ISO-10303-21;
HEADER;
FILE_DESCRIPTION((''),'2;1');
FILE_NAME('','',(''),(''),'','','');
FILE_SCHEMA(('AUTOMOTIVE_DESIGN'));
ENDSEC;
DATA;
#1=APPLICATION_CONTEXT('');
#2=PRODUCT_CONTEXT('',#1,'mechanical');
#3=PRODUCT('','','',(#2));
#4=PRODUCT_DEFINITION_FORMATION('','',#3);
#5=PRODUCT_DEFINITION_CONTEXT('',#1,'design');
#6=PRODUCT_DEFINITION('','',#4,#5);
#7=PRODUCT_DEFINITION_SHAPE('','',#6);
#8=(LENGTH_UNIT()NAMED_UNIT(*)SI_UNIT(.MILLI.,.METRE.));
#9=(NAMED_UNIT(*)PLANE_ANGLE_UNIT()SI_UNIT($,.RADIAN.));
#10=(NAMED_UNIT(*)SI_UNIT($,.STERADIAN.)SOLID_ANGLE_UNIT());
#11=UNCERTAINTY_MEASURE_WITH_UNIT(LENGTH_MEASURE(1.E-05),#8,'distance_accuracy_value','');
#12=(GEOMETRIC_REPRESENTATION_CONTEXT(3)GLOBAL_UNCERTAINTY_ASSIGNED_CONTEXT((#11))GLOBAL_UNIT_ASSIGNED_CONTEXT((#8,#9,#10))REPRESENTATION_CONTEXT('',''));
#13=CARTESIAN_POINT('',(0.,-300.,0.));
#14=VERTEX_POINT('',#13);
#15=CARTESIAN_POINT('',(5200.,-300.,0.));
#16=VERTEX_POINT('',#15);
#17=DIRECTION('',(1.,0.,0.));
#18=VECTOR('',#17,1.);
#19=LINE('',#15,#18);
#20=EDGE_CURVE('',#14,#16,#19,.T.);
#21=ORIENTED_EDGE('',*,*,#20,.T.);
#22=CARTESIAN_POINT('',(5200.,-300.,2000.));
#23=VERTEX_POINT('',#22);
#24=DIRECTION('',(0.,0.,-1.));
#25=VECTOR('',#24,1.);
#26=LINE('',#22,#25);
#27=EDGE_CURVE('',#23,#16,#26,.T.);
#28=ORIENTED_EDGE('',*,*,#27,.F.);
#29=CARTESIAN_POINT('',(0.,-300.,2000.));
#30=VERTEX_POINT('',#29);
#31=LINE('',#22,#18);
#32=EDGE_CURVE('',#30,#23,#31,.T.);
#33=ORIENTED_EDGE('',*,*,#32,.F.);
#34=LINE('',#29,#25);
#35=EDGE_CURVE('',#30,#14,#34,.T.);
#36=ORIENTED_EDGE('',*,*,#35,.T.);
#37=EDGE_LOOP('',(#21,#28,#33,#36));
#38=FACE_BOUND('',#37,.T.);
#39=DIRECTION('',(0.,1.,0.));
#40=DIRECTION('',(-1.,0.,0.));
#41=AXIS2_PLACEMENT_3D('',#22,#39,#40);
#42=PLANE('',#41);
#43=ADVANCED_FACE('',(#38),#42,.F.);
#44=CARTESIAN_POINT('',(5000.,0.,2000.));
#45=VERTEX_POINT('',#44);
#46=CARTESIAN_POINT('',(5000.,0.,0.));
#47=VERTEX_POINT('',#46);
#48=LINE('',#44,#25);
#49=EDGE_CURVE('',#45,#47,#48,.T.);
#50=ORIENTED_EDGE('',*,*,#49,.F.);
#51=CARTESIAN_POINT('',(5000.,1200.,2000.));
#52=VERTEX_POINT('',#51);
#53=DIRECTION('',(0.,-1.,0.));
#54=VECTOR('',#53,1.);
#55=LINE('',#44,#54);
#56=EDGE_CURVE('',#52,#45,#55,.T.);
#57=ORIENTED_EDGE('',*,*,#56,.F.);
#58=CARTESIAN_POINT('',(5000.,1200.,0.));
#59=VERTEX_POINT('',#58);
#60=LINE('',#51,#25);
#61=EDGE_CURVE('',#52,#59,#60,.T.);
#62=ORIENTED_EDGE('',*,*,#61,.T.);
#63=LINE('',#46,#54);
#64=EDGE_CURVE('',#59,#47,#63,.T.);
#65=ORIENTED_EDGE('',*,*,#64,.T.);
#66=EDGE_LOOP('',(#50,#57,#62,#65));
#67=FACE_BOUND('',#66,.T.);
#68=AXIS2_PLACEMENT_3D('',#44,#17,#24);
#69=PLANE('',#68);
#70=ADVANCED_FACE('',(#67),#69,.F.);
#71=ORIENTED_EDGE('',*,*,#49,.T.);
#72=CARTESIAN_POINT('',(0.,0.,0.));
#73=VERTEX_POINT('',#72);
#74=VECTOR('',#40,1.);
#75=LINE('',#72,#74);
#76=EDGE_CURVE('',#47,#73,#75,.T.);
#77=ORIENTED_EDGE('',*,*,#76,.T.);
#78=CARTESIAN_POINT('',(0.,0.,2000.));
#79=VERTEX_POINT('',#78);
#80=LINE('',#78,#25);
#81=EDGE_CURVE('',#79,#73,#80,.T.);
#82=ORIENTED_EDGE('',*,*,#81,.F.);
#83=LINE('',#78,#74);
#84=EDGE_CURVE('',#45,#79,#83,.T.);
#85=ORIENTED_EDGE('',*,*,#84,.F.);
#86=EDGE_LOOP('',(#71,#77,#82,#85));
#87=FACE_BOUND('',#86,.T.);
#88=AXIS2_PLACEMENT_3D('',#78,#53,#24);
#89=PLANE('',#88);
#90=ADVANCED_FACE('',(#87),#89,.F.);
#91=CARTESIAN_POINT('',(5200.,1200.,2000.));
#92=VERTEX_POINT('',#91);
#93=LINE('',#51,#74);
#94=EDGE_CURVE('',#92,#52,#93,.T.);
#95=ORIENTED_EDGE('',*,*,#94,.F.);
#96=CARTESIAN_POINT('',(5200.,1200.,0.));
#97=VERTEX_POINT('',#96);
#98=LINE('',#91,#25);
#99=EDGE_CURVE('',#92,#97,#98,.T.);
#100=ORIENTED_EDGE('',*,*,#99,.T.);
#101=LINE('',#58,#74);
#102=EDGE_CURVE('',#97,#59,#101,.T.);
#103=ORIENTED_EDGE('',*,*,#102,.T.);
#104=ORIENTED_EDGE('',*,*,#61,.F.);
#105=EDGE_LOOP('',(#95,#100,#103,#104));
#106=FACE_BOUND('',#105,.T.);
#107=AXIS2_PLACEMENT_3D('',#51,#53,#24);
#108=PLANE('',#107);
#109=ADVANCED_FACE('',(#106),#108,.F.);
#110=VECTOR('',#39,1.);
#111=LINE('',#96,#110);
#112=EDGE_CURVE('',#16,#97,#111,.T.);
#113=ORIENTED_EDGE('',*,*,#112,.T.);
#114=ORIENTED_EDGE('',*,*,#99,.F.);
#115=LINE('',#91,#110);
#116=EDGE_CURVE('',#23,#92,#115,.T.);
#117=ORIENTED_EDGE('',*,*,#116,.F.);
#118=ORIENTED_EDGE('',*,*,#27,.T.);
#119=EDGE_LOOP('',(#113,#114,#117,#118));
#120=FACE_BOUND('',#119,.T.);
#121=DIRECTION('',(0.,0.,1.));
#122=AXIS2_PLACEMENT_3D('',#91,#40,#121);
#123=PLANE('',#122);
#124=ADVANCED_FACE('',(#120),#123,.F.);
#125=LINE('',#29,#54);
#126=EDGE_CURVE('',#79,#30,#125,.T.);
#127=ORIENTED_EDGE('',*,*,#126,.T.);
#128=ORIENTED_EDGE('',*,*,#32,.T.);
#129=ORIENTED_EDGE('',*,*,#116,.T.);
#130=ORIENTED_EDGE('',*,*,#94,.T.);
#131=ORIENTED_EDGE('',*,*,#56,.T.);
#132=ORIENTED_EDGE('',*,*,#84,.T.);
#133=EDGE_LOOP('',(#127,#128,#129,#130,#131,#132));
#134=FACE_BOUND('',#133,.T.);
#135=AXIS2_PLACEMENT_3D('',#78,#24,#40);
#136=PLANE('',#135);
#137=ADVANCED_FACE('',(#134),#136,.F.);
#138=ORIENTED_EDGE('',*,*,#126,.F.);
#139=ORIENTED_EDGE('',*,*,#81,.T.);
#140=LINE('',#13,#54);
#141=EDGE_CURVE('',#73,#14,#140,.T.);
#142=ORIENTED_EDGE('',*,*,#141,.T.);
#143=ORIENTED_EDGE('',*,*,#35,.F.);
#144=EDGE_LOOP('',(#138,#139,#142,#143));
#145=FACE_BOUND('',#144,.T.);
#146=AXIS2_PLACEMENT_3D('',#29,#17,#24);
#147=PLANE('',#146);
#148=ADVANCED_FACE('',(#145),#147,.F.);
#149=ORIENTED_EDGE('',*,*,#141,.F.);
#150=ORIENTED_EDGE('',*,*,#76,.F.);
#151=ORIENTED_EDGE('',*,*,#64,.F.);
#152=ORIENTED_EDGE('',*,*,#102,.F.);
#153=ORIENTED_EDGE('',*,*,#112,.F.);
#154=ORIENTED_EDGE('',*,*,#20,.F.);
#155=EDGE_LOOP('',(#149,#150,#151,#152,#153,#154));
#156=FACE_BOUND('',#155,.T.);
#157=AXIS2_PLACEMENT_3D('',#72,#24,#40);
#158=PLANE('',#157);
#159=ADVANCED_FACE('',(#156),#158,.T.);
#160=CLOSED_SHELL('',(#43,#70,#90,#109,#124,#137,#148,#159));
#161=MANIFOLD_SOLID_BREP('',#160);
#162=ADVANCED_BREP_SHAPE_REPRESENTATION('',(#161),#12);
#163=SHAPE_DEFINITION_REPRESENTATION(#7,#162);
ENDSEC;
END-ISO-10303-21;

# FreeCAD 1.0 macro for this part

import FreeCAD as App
import Part
import Sketcher

V = App.Vector
Q = App.Units.Quantity


def add_polygon(sketch, points):
    """Adds a closed chain of lines whose ends are joined by coincident constraints."""
    first, n = sketch.GeometryCount, len(points)
    for a, b in zip(points, points[1:] + points[:1]):
        sketch.addGeometry(Part.LineSegment(App.Vector(*a, 0), App.Vector(*b, 0)), False)
    for i in range(n):
        sketch.addConstraint(Sketcher.Constraint("Coincident", first + i, 2, first + (i + 1) % n, 1))

doc = App.newDocument("Part")
body = doc.addObject("PartDesign::Body", "Body")

# Sketch on XY plane
sketch1 = body.newObject("Sketcher::SketchObject", "Sketch")
sketch1.AttachmentSupport = (doc.getObject("XY_Plane"), [""])
sketch1.MapMode = "FlatFace"
add_polygon(sketch1, [(5000, 0), (0, 0), (0, -300), (5200, -300), (5200, 1200), (5000, 1200)])  # lines 0-5
sketch1.addConstraint([
    Sketcher.Constraint("Horizontal", 0),
    Sketcher.Constraint("Vertical", 1),
    Sketcher.Constraint("Horizontal", 2),
    Sketcher.Constraint("Vertical", 3),
    Sketcher.Constraint("Horizontal", 4),
    Sketcher.Constraint("Vertical", 5),
    Sketcher.Constraint("Coincident", 0, 2, -1, 1),
    Sketcher.Constraint("DistanceX", 0, 2, 0, 1, Q("5000 mm")),
    Sketcher.Constraint("DistanceX", 2, 1, 2, 2, Q("5200 mm")),
    Sketcher.Constraint("DistanceY", 1, 2, 1, 1, Q("300 mm")),
    Sketcher.Constraint("DistanceY", 3, 1, 3, 2, Q("1500 mm")),
])
pad1 = body.newObject("PartDesign::Pad", "Pad")
pad1.Profile = sketch1
pad1.Length = 2000

doc.recompute()
